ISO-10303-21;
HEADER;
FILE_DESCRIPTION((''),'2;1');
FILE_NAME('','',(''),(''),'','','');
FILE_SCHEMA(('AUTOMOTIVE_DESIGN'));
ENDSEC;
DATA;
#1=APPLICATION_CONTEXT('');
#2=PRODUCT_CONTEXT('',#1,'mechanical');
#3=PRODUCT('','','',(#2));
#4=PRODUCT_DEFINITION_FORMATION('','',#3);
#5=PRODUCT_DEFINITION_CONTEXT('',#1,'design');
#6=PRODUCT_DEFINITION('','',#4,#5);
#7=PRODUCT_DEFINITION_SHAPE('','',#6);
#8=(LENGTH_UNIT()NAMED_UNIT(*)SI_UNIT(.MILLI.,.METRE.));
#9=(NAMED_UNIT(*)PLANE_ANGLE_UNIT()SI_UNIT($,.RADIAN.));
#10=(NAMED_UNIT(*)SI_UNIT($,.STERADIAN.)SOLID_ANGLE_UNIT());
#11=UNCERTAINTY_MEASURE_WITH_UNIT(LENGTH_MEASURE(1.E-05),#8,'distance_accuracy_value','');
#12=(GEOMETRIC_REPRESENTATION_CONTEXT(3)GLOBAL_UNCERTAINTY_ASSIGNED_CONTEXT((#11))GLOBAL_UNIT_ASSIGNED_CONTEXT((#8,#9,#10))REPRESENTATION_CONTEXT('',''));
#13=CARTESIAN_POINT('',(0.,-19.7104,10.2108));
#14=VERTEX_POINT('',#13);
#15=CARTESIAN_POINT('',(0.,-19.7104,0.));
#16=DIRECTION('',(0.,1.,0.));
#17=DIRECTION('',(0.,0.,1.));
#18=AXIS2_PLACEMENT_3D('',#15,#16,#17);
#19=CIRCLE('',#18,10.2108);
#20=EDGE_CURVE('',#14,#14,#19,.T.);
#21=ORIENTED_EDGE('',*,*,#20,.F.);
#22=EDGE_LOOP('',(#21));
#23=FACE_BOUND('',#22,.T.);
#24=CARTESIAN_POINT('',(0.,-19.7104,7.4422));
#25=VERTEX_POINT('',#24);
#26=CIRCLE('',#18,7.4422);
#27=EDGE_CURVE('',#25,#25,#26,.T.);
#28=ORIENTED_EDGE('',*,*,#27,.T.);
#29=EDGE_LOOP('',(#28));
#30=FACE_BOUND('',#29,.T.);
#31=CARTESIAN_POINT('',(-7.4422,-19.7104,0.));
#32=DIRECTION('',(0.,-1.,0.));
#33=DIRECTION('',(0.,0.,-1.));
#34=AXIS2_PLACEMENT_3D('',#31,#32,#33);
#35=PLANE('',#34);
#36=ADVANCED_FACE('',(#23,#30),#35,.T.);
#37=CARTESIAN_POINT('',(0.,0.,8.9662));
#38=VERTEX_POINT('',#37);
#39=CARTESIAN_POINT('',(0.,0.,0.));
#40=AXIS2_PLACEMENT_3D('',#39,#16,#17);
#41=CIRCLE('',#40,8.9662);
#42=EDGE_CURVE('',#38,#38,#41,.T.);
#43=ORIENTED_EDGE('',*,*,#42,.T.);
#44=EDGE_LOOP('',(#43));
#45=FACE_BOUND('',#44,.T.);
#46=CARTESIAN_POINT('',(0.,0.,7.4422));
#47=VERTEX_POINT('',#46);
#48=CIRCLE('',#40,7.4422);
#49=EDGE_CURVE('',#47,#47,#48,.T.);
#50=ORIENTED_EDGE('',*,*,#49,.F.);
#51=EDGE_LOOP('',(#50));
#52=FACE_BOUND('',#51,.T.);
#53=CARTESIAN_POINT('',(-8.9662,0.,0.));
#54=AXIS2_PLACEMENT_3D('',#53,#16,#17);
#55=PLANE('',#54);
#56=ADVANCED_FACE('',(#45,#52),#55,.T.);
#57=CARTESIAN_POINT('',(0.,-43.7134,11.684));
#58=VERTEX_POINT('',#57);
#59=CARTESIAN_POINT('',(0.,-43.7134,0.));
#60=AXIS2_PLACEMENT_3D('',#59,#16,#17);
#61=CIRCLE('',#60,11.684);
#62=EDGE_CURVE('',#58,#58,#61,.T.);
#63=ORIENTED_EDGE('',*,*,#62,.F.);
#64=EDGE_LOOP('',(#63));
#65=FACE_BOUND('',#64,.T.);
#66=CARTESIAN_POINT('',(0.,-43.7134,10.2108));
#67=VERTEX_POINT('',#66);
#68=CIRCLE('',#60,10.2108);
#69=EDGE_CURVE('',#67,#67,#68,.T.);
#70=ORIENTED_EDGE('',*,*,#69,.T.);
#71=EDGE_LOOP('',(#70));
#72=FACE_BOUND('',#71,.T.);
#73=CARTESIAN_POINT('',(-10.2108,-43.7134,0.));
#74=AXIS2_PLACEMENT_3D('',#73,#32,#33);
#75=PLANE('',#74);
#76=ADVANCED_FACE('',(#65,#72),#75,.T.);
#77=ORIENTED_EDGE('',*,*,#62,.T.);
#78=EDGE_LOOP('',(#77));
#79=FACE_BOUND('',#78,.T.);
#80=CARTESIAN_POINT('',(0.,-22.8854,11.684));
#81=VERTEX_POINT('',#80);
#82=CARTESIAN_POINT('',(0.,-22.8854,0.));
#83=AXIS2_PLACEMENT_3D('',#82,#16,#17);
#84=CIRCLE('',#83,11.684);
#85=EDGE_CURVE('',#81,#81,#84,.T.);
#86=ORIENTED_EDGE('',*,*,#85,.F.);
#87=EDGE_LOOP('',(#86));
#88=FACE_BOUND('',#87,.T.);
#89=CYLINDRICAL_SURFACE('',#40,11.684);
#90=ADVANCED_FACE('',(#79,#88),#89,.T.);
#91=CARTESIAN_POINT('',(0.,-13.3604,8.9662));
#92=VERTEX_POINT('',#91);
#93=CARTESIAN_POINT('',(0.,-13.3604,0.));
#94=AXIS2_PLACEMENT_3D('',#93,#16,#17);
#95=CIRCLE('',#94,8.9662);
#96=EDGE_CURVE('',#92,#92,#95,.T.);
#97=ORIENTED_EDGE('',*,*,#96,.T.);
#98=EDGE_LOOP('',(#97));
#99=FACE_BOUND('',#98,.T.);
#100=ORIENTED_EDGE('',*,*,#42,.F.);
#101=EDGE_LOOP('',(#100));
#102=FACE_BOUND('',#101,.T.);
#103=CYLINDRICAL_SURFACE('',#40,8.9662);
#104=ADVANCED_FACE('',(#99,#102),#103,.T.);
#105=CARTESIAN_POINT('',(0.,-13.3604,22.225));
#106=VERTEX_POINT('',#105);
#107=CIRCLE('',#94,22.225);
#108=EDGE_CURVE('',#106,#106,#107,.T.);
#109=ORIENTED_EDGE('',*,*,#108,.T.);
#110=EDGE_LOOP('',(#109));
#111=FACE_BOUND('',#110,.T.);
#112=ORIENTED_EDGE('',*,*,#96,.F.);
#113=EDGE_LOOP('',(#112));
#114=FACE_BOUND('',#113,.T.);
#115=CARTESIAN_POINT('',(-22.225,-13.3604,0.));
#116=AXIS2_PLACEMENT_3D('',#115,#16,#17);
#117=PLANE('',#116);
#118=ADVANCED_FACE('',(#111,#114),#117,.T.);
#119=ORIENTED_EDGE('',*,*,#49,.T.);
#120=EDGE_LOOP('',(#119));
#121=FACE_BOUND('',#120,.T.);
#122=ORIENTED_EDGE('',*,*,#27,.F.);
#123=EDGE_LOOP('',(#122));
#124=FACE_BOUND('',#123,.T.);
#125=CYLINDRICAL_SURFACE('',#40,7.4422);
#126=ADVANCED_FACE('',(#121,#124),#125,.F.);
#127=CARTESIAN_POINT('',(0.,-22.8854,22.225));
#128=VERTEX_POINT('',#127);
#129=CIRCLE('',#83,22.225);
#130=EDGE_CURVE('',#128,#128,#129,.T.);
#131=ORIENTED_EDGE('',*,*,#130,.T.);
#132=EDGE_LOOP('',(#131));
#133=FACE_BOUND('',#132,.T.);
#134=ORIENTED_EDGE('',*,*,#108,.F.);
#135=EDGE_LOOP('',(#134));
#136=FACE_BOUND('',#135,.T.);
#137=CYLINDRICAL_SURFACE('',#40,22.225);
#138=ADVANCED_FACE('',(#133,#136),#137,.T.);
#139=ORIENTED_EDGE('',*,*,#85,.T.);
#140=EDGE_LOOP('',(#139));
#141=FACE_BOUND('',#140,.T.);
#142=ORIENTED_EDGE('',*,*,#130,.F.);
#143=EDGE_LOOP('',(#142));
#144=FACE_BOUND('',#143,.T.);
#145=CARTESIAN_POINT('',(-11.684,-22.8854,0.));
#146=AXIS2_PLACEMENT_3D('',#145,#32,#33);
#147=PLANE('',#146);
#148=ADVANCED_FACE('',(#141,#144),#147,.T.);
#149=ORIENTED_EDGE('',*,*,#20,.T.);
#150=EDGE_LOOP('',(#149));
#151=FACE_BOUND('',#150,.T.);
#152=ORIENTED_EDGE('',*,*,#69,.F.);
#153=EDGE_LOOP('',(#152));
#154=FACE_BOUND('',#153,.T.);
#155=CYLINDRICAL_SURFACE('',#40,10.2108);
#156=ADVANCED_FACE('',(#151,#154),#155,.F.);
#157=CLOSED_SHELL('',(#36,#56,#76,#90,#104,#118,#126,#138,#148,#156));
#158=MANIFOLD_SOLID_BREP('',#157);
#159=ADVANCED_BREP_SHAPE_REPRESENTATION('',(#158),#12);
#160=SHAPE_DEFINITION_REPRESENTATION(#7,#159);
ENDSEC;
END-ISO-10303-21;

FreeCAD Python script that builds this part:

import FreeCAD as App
import Part
import Sketcher

V = App.Vector
Q = App.Units.Quantity

doc = App.newDocument("Part")
body = doc.addObject("PartDesign::Body", "Body")

sketch1 = body.newObject("Sketcher::SketchObject", "Sketch")
sketch1.AttachmentSupport = (doc.getObject("XY_Plane"), [""])
sketch1.MapMode = "FlatFace"
sketch1.addGeometry(Part.LineSegment(V(-7.4, -19.7, 0), V(-7.4, 0, 0)), False)
sketch1.addGeometry(Part.LineSegment(V(-7.4, 0, 0), V(-9, 0, 0)), False)
sketch1.addGeometry(Part.LineSegment(V(-9, 0, 0), V(-9, -13.4, 0)), False)
sketch1.addGeometry(Part.LineSegment(V(-9, -13.4, 0), V(-22.2, -13.4, 0)), False)
sketch1.addGeometry(Part.LineSegment(V(-22.2, -13.4, 0), V(-22.2, -22.9, 0)), False)
sketch1.addGeometry(Part.LineSegment(V(-22.2, -22.9, 0), V(-11.7, -22.9, 0)), False)
sketch1.addGeometry(Part.LineSegment(V(-11.7, -22.9, 0), V(-11.7, -43.7, 0)), False)
sketch1.addGeometry(Part.LineSegment(V(-11.7, -43.7, 0), V(-10.2, -43.7, 0)), False)
sketch1.addGeometry(Part.LineSegment(V(-10.2, -43.7, 0), V(-10.2, -19.7, 0)), False)
sketch1.addGeometry(Part.LineSegment(V(-10.2, -19.7, 0), V(-7.4, -19.7, 0)), False)
sketch1.addConstraint(Sketcher.Constraint("Coincident", 0, 2, 1, 1))
sketch1.addConstraint(Sketcher.Constraint("Coincident", 1, 2, 2, 1))
sketch1.addConstraint(Sketcher.Constraint("Coincident", 2, 2, 3, 1))
sketch1.addConstraint(Sketcher.Constraint("Coincident", 3, 2, 4, 1))
sketch1.addConstraint(Sketcher.Constraint("Coincident", 4, 2, 5, 1))
sketch1.addConstraint(Sketcher.Constraint("Coincident", 5, 2, 6, 1))
sketch1.addConstraint(Sketcher.Constraint("Coincident", 6, 2, 7, 1))
sketch1.addConstraint(Sketcher.Constraint("Coincident", 7, 2, 8, 1))
sketch1.addConstraint(Sketcher.Constraint("Coincident", 8, 2, 9, 1))
sketch1.addConstraint(Sketcher.Constraint("Coincident", 9, 2, 0, 1))
sketch1.addConstraint(Sketcher.Constraint("Vertical", 0))
sketch1.addConstraint(Sketcher.Constraint("Horizontal", 1))
sketch1.addConstraint(Sketcher.Constraint("Vertical", 2))
sketch1.addConstraint(Sketcher.Constraint("Horizontal", 3))
sketch1.addConstraint(Sketcher.Constraint("Vertical", 4))
sketch1.addConstraint(Sketcher.Constraint("Horizontal", 5))
sketch1.addConstraint(Sketcher.Constraint("Vertical", 6))
sketch1.addConstraint(Sketcher.Constraint("Horizontal", 7))
sketch1.addConstraint(Sketcher.Constraint("Vertical", 8))
sketch1.addConstraint(Sketcher.Constraint("Horizontal", 9))
sketch1.addConstraint(Sketcher.Constraint("PointOnObject", 0, 2, -1))
sketch1.addConstraint(Sketcher.Constraint("DistanceX", 1, 2, 1, 1, Q("0.06 in")))
sketch1.addConstraint(Sketcher.Constraint("DistanceY", 6, 2, 6, 1, Q("0.82 in")))
sketch1.addConstraint(Sketcher.Constraint("DistanceX", 3, 2, 3, 1, Q("0.522 in")))
sketch1.addConstraint(Sketcher.Constraint("DistanceX", 5, 1, 5, 2, Q("0.415 in")))
sketch1.addConstraint(Sketcher.Constraint("DistanceX", 7, 1, 7, 2, Q("0.058 in")))
sketch1.addConstraint(Sketcher.Constraint("DistanceY", 0, 1, 0, 2, Q("0.776 in")))
sketch1.addConstraint(Sketcher.Constraint("DistanceY", 2, 2, 2, 1, Q("0.526 in")))
sketch1.addConstraint(Sketcher.Constraint("DistanceY", 4, 2, 4, 1, Q("0.375 in")))
sketch1.addConstraint(Sketcher.Constraint("DistanceX", 5, 2, -1, 1, Q("0.46 in")))
revolution = body.newObject("PartDesign::Revolution", "Revolution")
revolution.Profile = sketch1
revolution.ReferenceAxis = (sketch1, ["V_Axis"])
revolution.Angle = 360

doc.recompute()
